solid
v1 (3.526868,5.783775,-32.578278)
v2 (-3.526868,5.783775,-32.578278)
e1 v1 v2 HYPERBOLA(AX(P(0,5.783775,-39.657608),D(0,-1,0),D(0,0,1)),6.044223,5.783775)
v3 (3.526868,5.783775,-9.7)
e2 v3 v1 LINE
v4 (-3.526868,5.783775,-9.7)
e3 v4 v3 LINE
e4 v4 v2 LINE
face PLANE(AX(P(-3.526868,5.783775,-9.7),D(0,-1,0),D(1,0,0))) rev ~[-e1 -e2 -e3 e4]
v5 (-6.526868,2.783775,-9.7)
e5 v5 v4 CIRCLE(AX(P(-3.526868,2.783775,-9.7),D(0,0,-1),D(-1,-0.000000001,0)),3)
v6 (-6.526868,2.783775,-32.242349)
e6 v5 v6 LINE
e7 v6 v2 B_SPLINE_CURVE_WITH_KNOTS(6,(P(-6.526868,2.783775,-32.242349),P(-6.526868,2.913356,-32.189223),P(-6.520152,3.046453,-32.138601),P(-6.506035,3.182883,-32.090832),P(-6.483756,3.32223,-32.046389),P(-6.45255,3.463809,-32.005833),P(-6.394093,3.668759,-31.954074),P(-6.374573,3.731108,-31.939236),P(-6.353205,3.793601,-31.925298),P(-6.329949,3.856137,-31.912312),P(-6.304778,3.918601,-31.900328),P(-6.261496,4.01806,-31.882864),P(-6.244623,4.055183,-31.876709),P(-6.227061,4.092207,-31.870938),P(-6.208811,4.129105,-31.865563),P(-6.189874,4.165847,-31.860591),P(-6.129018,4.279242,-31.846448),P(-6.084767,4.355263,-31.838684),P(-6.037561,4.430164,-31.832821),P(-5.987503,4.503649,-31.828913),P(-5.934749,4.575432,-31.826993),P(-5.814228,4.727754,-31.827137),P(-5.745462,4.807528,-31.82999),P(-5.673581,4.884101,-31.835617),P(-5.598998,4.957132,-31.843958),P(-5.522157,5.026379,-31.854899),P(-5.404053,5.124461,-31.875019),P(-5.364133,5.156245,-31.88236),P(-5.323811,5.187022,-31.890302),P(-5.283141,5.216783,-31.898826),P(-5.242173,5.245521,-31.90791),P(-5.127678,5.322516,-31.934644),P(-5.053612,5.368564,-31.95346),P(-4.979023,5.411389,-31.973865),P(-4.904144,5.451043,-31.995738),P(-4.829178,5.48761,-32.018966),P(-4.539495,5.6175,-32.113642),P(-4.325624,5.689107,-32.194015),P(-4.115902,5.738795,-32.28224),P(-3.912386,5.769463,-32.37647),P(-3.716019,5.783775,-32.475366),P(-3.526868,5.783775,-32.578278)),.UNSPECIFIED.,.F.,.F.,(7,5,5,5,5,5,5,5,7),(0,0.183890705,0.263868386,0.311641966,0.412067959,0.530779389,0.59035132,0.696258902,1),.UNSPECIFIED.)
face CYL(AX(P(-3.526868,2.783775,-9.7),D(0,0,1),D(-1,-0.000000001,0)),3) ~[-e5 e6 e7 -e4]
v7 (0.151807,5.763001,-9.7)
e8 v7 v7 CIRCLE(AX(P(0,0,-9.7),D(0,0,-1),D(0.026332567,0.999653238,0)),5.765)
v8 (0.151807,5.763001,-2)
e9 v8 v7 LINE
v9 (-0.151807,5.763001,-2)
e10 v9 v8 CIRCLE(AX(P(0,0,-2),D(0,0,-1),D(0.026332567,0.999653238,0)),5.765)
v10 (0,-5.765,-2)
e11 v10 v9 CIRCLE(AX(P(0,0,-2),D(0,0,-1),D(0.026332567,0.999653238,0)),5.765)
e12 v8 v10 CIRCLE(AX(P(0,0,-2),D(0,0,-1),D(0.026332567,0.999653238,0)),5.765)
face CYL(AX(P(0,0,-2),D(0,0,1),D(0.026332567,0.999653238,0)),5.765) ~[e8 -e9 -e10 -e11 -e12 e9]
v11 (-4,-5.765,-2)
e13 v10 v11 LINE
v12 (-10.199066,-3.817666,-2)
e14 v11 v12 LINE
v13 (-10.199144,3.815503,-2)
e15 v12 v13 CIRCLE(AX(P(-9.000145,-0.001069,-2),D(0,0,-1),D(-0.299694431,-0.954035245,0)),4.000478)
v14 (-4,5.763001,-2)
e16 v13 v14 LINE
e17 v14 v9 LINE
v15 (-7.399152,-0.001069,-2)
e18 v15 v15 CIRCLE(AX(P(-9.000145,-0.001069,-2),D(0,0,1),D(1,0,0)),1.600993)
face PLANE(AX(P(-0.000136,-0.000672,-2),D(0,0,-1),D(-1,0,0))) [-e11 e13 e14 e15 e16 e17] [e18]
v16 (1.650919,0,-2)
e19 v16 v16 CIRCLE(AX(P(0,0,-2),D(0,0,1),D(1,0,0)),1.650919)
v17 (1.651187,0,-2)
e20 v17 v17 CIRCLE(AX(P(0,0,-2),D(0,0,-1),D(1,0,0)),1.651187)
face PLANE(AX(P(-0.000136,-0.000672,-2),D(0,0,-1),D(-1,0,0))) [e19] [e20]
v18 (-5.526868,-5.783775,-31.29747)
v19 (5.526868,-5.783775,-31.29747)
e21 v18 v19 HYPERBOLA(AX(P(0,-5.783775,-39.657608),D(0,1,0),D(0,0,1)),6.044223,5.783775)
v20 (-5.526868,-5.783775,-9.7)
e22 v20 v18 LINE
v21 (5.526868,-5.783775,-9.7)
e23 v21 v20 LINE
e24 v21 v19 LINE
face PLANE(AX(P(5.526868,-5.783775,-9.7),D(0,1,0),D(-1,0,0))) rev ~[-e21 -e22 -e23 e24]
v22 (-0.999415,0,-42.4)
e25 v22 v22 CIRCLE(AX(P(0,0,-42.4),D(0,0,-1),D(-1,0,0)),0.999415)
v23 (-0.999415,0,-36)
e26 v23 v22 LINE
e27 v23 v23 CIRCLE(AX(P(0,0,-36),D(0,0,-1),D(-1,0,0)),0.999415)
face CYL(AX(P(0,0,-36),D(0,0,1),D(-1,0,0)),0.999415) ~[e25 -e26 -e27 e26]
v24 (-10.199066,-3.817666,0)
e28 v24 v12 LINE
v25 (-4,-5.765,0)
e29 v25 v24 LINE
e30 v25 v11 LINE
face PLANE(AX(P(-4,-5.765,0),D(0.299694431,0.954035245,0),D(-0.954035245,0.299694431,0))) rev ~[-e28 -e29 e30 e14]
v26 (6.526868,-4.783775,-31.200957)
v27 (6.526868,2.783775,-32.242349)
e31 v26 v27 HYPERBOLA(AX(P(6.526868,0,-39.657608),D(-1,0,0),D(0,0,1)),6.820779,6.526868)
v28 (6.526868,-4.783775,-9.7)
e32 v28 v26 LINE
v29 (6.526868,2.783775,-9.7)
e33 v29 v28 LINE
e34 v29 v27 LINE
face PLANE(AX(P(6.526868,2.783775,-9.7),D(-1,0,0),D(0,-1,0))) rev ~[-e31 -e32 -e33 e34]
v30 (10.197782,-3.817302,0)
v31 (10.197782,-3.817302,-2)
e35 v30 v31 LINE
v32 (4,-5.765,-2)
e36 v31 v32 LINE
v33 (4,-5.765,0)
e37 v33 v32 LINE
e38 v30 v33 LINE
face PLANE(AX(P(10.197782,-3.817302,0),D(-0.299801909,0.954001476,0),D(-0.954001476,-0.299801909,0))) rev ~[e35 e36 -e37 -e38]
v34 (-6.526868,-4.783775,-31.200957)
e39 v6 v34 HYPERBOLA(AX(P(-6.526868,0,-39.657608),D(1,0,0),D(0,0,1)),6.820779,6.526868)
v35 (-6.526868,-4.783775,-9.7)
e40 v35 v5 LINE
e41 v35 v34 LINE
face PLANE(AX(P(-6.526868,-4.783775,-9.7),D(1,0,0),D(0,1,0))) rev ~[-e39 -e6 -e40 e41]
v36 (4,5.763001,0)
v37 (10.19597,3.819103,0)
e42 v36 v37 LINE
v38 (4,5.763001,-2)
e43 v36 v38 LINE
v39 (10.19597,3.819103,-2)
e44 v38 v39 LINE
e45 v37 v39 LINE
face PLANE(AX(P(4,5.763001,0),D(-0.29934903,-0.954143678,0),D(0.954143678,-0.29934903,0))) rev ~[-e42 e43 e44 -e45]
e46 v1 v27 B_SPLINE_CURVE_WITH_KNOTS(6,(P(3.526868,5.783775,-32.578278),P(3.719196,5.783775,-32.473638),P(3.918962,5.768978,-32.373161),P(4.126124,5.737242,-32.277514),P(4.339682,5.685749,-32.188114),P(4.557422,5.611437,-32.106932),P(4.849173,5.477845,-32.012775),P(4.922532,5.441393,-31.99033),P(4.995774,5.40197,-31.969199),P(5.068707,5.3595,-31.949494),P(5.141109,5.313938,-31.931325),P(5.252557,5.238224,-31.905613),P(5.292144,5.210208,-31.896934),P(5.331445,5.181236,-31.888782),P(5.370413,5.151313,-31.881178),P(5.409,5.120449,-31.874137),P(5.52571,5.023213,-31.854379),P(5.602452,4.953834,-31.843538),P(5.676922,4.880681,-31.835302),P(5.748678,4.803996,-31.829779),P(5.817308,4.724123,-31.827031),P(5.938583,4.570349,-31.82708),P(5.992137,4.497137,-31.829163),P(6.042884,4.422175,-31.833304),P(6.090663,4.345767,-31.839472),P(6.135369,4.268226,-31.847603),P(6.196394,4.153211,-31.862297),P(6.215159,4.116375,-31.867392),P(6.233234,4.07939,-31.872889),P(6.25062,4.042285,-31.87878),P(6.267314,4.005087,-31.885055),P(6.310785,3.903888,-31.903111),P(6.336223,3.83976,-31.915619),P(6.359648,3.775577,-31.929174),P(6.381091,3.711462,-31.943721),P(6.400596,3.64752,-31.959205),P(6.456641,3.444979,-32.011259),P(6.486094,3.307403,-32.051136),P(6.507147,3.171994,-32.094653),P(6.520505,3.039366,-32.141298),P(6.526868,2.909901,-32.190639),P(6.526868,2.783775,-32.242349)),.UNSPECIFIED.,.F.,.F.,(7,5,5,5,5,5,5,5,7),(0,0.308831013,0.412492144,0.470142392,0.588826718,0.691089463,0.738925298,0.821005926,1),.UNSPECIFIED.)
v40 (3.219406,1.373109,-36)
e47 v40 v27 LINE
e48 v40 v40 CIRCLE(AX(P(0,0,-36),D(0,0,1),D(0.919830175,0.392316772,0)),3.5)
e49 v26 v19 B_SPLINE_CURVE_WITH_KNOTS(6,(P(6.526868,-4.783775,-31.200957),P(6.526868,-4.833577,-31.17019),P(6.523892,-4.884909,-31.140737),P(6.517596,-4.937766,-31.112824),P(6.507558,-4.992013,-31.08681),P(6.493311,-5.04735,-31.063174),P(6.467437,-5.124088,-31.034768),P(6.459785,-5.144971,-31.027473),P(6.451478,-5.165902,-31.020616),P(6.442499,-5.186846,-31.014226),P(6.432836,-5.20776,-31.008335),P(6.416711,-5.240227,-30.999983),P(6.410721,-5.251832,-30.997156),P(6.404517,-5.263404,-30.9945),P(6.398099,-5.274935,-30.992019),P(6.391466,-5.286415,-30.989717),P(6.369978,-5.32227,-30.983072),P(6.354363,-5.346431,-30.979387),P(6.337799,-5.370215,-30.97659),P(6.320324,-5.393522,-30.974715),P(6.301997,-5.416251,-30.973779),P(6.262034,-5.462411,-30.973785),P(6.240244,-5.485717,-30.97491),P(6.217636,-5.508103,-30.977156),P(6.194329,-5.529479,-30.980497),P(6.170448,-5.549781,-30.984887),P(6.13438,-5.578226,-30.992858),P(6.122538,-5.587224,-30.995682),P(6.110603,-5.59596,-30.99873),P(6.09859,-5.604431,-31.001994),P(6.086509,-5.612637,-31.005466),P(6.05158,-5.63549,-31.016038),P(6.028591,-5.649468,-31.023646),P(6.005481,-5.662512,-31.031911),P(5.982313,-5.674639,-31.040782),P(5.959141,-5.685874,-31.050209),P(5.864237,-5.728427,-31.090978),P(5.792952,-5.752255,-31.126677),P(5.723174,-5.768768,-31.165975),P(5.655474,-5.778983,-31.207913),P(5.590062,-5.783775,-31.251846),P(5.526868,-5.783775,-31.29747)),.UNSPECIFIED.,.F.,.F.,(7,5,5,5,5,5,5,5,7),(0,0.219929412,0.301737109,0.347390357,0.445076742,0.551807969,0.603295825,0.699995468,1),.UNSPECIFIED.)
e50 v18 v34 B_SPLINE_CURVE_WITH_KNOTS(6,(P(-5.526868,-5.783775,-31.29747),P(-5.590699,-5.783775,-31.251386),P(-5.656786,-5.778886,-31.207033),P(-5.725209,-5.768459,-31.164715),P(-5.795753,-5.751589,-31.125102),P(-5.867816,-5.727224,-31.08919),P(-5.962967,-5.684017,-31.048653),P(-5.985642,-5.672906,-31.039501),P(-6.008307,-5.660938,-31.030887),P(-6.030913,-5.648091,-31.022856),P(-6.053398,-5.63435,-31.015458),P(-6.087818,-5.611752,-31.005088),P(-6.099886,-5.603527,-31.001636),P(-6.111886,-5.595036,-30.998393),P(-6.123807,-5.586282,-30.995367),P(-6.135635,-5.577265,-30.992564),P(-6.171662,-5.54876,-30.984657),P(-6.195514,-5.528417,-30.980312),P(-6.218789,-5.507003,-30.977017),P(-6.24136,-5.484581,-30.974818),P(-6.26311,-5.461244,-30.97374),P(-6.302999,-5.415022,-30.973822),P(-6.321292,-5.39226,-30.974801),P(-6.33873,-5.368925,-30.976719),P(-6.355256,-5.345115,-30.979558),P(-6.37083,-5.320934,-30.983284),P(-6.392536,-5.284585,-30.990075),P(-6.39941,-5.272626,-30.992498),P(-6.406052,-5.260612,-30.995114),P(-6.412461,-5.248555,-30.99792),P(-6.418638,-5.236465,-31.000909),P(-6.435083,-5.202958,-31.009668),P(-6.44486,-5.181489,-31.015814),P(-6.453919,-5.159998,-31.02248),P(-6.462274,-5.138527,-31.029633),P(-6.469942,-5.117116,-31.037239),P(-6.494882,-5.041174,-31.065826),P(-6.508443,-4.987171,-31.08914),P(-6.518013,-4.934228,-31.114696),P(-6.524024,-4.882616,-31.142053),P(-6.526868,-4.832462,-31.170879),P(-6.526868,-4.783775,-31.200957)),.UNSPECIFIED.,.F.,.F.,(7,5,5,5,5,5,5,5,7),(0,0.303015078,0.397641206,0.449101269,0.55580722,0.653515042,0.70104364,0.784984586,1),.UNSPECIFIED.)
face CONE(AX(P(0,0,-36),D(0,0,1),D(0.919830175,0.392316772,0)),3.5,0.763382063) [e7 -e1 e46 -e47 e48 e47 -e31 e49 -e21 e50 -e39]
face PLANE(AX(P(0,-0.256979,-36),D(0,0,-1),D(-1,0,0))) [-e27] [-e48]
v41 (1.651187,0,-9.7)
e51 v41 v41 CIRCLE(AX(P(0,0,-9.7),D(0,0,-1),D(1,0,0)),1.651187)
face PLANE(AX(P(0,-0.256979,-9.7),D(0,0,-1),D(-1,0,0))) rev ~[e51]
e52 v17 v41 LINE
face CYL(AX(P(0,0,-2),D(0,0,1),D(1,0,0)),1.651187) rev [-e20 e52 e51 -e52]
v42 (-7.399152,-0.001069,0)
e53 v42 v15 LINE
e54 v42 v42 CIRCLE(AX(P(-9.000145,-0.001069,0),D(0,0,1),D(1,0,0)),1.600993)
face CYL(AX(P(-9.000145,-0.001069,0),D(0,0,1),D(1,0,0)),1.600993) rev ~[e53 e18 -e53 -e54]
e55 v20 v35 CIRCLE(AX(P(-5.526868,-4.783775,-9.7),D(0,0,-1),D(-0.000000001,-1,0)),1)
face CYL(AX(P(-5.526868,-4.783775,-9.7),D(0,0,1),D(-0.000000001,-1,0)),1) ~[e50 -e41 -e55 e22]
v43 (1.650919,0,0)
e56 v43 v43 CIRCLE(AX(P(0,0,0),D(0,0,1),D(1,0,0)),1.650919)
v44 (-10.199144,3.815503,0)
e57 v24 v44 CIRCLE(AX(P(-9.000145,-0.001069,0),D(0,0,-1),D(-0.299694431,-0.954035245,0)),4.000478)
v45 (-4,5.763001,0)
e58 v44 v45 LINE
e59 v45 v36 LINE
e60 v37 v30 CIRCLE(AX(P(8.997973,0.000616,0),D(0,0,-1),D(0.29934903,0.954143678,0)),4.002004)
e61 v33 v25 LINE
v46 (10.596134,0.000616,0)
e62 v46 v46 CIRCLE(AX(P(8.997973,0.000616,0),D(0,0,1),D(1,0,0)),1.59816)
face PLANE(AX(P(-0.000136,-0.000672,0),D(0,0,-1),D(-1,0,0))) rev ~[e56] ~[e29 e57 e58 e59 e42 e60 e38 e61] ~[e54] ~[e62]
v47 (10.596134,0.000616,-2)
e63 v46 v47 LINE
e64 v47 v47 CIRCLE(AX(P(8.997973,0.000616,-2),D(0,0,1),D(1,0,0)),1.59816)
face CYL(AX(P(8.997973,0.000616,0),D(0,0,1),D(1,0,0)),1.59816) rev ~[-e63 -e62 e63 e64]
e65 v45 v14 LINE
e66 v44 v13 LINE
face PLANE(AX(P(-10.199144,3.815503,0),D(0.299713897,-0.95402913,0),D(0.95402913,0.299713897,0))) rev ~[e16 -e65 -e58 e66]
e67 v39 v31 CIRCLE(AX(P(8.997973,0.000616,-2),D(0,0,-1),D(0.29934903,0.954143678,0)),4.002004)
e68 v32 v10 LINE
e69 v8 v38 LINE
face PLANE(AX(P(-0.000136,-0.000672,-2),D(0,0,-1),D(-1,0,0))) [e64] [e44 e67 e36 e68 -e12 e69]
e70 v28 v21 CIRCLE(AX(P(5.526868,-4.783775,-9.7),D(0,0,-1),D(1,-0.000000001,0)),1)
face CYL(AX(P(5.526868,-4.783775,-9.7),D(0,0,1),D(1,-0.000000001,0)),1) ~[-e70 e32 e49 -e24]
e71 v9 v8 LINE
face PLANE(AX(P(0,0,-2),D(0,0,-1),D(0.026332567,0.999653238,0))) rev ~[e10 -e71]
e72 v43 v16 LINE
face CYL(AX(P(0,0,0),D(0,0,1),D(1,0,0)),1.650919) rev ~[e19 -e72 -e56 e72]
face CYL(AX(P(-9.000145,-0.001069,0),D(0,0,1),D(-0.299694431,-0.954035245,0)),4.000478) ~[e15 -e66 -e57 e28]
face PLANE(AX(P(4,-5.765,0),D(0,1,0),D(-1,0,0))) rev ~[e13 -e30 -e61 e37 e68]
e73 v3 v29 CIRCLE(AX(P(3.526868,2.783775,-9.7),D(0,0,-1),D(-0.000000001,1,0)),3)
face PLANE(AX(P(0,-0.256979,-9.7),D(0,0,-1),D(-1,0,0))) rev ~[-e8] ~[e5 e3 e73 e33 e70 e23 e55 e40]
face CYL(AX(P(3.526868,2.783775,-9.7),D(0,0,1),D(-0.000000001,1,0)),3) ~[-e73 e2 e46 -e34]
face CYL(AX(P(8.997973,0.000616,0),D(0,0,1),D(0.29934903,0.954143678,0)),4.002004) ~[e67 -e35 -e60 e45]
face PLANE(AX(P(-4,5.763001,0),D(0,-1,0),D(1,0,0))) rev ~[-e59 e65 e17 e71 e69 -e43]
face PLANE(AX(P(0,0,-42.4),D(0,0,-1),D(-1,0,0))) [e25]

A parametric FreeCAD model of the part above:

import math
import FreeCAD as App
import Part
import Sketcher

V = App.Vector


def add_polygon(sketch, points):
    """Adds a closed chain of lines whose ends are joined by coincident constraints."""
    first, n = sketch.GeometryCount, len(points)
    for a, b in zip(points, points[1:] + points[:1]):
        sketch.addGeometry(Part.LineSegment(App.Vector(*a, 0), App.Vector(*b, 0)), False)
    for i in range(n):
        sketch.addConstraint(Sketcher.Constraint("Coincident", first + i, 2, first + (i + 1) % n, 1))

doc = App.newDocument("Part")
body = doc.addObject("PartDesign::Body", "Body")

# Sketch on XY plane
sketch1 = body.newObject("Sketcher::SketchObject", "Sketch")
sketch1.AttachmentSupport = (doc.getObject("XY_Plane"), [""])
sketch1.MapMode = "FlatFace"
sketch1.addGeometry([
    Part.LineSegment(V(10.2, 3.8, 0), V(4, 5.8, 0)),  # 0
    Part.LineSegment(V(4, 5.8, 0), V(-4, 5.8, 0)),  # 1
    Part.LineSegment(V(-4, 5.8, 0), V(-10.2, 3.8, 0)),  # 2
    Part.ArcOfCircle(Part.Circle(V(-9, 0, 0), V(0, 0, 1), 4), math.radians(107), math.radians(253)),  # 3
    Part.LineSegment(V(-10.2, -3.8, 0), V(-4, -5.8, 0)),  # 4
    Part.LineSegment(V(-4, -5.8, 0), V(4, -5.8, 0)),  # 5
    Part.LineSegment(V(4, -5.8, 0), V(10.2, -3.8, 0)),  # 6
    Part.ArcOfCircle(Part.Circle(V(9, 0, 0), V(0, 0, 1), 4), math.radians(-73), math.radians(73)),  # 7
    Part.Circle(V(-9, 0, 0), V(0, 0, 1), 1.6),  # 8
    Part.Circle(V(9, 0, 0), V(0, 0, 1), 1.6),  # 9
    Part.Circle(V(0, 0, 0), V(0, 0, 1), 1.7),  # 10
], False)
sketch1.addConstraint([
    Sketcher.Constraint("Coincident", 0, 2, 1, 1),
    Sketcher.Constraint("Coincident", 1, 2, 2, 1),
    Sketcher.Constraint("Tangent", 2, 2, 3, 1),
    Sketcher.Constraint("Tangent", 3, 2, 4, 1),
    Sketcher.Constraint("Coincident", 4, 2, 5, 1),
    Sketcher.Constraint("Coincident", 5, 2, 6, 1),
    Sketcher.Constraint("Tangent", 6, 2, 7, 1),
    Sketcher.Constraint("Tangent", 7, 2, 0, 1),
    Sketcher.Constraint("Horizontal", 1),
    Sketcher.Constraint("Horizontal", 5),
    Sketcher.Constraint("Coincident", 10, 3, -1, 1),
    Sketcher.Constraint("Coincident", 8, 3, 3, 3),
    Sketcher.Constraint("Coincident", 9, 3, 7, 3),
    Sketcher.Constraint("Vertical", 1, 2, 4, 2),
    Sketcher.Constraint("Vertical", 0, 2, 5, 2),
    Sketcher.Constraint("DistanceX", 1, 2, 1, 1, 8.0),
    Sketcher.Constraint("DistanceX", -1, 1, 0, 2, 4.0),
    Sketcher.Constraint("Diameter", 9, 3.196321),
    Sketcher.Constraint("Diameter", 8, 3.201987),
    Sketcher.Constraint("Diameter", 10, 3.301838),
    Sketcher.Constraint("DistanceY", -1, 1, 0, 2, 5.763001),
    Sketcher.Constraint("DistanceY", 4, 2, -1, 1, 5.765),
    Sketcher.Constraint("Radius", 3, 4.000478),
    Sketcher.Constraint("Radius", 7, 4.002004),
    Sketcher.Constraint("DistanceX", 2, 2, 3, 3, 1.198999),
    Sketcher.Constraint("DistanceY", 6, 2, -1, 1, 3.817302),
    Sketcher.Constraint("Distance", 0, 6.493749),
    Sketcher.Constraint("DistanceY", 3, 3, -1, 1, 0.001069),
])
pad1 = body.newObject("PartDesign::Pad", "Pad")
pad1.Profile = sketch1
pad1.Length = 2
pad1.Reversed = True

# Sketch on XY plane
sketch2 = body.newObject("Sketcher::SketchObject", "Sketch001")
sketch2.AttachmentSupport = (doc.getObject("XY_Plane"), [""])
sketch2.MapMode = "FlatFace"
sketch2.AttachmentOffset = App.Placement(V(0, 0, -2), App.Rotation())
sketch2.addGeometry([
    Part.Circle(V(0, 0, 0), V(0, 0, 1), 5.8),
    Part.Circle(V(0, 0, 0), V(0, 0, 1), 1.7),
], False)
sketch2.addConstraint([
    Sketcher.Constraint("Coincident", 0, 3, -1, 1),
    Sketcher.Constraint("Coincident", 1, 3, -1, 1),
    Sketcher.Constraint("Diameter", 0, 11.53),
    Sketcher.Constraint("Diameter", 1, 3.302373),
])
pad2 = body.newObject("PartDesign::Pad", "Pad001")
pad2.Profile = sketch2
pad2.Length = 7.7
pad2.Reversed = True

# Sketch on XY plane
sketch3 = body.newObject("Sketcher::SketchObject", "Sketch002")
sketch3.AttachmentSupport = (doc.getObject("XY_Plane"), [""])
sketch3.MapMode = "FlatFace"
sketch3.AttachmentOffset = App.Placement(V(0, 0, -9.7), App.Rotation())
sketch3.addGeometry([
    Part.LineSegment(V(-3.5, 5.8, 0), V(3.5, 5.8, 0)),  # 0
    Part.ArcOfCircle(Part.Circle(V(3.5, 2.8, 0), V(0, 0, 1), 3), math.radians(0), math.radians(90)),  # 1
    Part.LineSegment(V(6.5, 2.8, 0), V(6.5, -4.8, 0)),  # 2
    Part.ArcOfCircle(Part.Circle(V(5.5, -4.8, 0), V(0, 0, 1), 1), math.radians(-90), math.radians(0)),  # 3
    Part.LineSegment(V(5.5, -5.8, 0), V(-5.5, -5.8, 0)),  # 4
    Part.ArcOfCircle(Part.Circle(V(-5.5, -4.8, 0), V(0, 0, 1), 1), math.radians(-180), math.radians(-90)),  # 5
    Part.LineSegment(V(-6.5, -4.8, 0), V(-6.5, 2.8, 0)),  # 6
    Part.ArcOfCircle(Part.Circle(V(-3.5, 2.8, 0), V(0, 0, 1), 3), math.radians(90), math.radians(180)),  # 7
], False)
sketch3.addConstraint([
    Sketcher.Constraint("Tangent", 0, 2, 1, 2),
    Sketcher.Constraint("Tangent", 1, 1, 2, 1),
    Sketcher.Constraint("Tangent", 2, 2, 3, 2),
    Sketcher.Constraint("Tangent", 3, 1, 4, 1),
    Sketcher.Constraint("Tangent", 4, 2, 5, 2),
    Sketcher.Constraint("Tangent", 5, 1, 6, 1),
    Sketcher.Constraint("Tangent", 6, 2, 7, 2),
    Sketcher.Constraint("Tangent", 7, 1, 0, 1),
    Sketcher.Constraint("Horizontal", 0),
    Sketcher.Constraint("Vertical", 2),
    Sketcher.Constraint("Horizontal", 4),
    Sketcher.Constraint("Vertical", 6),
    Sketcher.Constraint("Equal", 3, 5),
    Sketcher.Constraint("Equal", 1, 7),
    Sketcher.Constraint("Radius", 1, 3.0),
    Sketcher.Constraint("Radius", 3, 1.0),
    Sketcher.Constraint("DistanceY", 2, 2, 2, 1, 7.567549),
    Sketcher.Constraint("DistanceX", 0, 1, 0, 2, 7.053737),
    Sketcher.Constraint("DistanceX", -1, 1, 1, 3, 3.526868),
    Sketcher.Constraint("DistanceY", -1, 1, 1, 3, 2.783775),
])
pad3 = body.newObject("PartDesign::Pad", "Pad002")
pad3.Profile = sketch3
pad3.Length = 26.3
pad3.Reversed = True

# Sketch on XZ plane
sketch4 = body.newObject("Sketcher::SketchObject", "Sketch003")
sketch4.AttachmentSupport = (doc.getObject("XZ_Plane"), [""])
sketch4.MapMode = "FlatFace"
add_polygon(sketch4, [(-8.5, -30.8), (-3.5, -36), (-8.5, -36)])  # lines 0-2
sketch4.addConstraint([
    Sketcher.Constraint("Horizontal", 1),
    Sketcher.Constraint("Vertical", 2),
    Sketcher.Constraint("DistanceY", 0, 2, -1, 1, 36.0),
    Sketcher.Constraint("DistanceX", 0, 2, -1, 1, 3.5),
    Sketcher.Constraint("DistanceX", 1, 2, 1, 1, 4.972559),
    Sketcher.Constraint("DistanceY", 2, 1, 2, 2, 5.196478),
])
groove = body.newObject("PartDesign::Groove", "Groove")
groove.Profile = sketch4
groove.ReferenceAxis = (sketch4, ["V_Axis"])
groove.Angle = 360

# Sketch on XY plane
sketch5 = body.newObject("Sketcher::SketchObject", "Sketch004")
sketch5.AttachmentSupport = (doc.getObject("XY_Plane"), [""])
sketch5.MapMode = "FlatFace"
sketch5.AttachmentOffset = App.Placement(V(0, 0, -36), App.Rotation())
sketch5.addGeometry(Part.Circle(V(0, 0, 0), V(0, 0, 1), 1), False)
sketch5.addConstraint([
    Sketcher.Constraint("Coincident", 0, 3, -1, 1),
    Sketcher.Constraint("Diameter", 0, 1.99883),
])
pad4 = body.newObject("PartDesign::Pad", "Pad003")
pad4.Profile = sketch5
pad4.Length = 6.4
pad4.Reversed = True

doc.recompute()
